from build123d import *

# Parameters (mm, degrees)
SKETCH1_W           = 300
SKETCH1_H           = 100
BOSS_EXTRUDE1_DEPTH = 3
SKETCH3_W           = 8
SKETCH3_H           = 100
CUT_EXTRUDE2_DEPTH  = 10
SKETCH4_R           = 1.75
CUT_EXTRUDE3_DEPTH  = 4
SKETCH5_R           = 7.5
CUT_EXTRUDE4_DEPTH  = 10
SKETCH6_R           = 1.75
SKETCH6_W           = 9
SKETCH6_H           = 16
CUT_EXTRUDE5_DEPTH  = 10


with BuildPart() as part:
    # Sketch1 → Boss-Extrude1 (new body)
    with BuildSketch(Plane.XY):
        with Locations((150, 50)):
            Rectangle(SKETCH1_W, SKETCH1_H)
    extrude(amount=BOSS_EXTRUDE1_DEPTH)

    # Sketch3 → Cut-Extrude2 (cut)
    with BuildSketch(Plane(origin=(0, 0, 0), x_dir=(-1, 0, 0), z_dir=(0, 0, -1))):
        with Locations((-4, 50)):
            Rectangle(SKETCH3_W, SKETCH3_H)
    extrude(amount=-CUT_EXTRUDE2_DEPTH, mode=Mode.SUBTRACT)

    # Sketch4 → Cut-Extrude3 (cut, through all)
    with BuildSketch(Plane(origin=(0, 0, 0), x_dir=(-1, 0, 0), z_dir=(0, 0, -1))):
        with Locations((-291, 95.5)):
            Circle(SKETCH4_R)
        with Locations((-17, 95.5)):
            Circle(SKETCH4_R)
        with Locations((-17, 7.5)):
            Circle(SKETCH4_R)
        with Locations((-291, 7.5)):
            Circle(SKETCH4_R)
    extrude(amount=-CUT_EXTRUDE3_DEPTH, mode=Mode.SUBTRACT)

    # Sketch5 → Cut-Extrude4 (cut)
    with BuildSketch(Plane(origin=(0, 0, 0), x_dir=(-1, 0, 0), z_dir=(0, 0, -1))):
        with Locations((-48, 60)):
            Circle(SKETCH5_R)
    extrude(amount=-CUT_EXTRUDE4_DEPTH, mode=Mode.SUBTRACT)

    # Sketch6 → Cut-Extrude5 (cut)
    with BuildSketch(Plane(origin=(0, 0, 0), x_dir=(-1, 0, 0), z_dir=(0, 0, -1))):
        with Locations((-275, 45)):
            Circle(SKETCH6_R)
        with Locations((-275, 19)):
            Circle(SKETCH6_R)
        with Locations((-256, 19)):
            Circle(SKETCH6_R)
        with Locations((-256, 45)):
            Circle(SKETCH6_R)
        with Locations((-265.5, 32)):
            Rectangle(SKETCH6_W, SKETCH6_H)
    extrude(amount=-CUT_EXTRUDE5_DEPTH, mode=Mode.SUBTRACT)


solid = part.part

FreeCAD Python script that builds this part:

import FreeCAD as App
import Part
import Sketcher

doc = App.newDocument("Part")
body = doc.addObject("PartDesign::Body", "Body")

sketch1 = body.newObject("Sketcher::SketchObject", "Sketch")
sketch1.AttachmentSupport = (doc.getObject("XY_Plane"), [""])
sketch1.MapMode = "FlatFace"
sketch1.addGeometry([
    Part.LineSegment(App.Vector(0, 100, 0), App.Vector(0, 0, 0)),
    Part.LineSegment(App.Vector(0, 0, 0), App.Vector(300, 0, 0)),
    Part.LineSegment(App.Vector(300, 0, 0), App.Vector(300, 100, 0)),
    Part.LineSegment(App.Vector(300, 100, 0), App.Vector(0, 100, 0)),
], False)
sketch1.addConstraint([
    Sketcher.Constraint("Coincident", 0, 2, 1, 1),
    Sketcher.Constraint("Coincident", 1, 2, 2, 1),
    Sketcher.Constraint("Coincident", 2, 2, 3, 1),
    Sketcher.Constraint("Coincident", 3, 2, 0, 1),
    Sketcher.Constraint("Vertical", 0),
    Sketcher.Constraint("Horizontal", 1),
    Sketcher.Constraint("Vertical", 2),
    Sketcher.Constraint("Horizontal", 3),
    Sketcher.Constraint("Coincident", 0, 2, -1, 1),
    Sketcher.Constraint("DistanceX", 1, 1, 1, 2, 300.0),
    Sketcher.Constraint("DistanceY", 0, 2, 0, 1, 100.0),
])
pad1 = body.newObject("PartDesign::Pad", "Pad")
pad1.Profile = sketch1
pad1.Length = 3

sketch2 = body.newObject("Sketcher::SketchObject", "Sketch001")
sketch2.AttachmentSupport = (doc.getObject("XY_Plane"), [""])
sketch2.MapMode = "FlatFace"
sketch2.addGeometry([
    Part.LineSegment(App.Vector(8, 100, 0), App.Vector(8, 0, 0)),
    Part.LineSegment(App.Vector(8, 0, 0), App.Vector(0, 0, 0)),
    Part.LineSegment(App.Vector(0, 0, 0), App.Vector(0, 100, 0)),
    Part.LineSegment(App.Vector(0, 100, 0), App.Vector(8, 100, 0)),
], False)
sketch2.addConstraint([
    Sketcher.Constraint("Coincident", 0, 2, 1, 1),
    Sketcher.Constraint("Coincident", 1, 2, 2, 1),
    Sketcher.Constraint("Coincident", 2, 2, 3, 1),
    Sketcher.Constraint("Coincident", 3, 2, 0, 1),
    Sketcher.Constraint("Vertical", 0),
    Sketcher.Constraint("Horizontal", 1),
    Sketcher.Constraint("Vertical", 2),
    Sketcher.Constraint("Horizontal", 3),
    Sketcher.Constraint("Coincident", 1, 2, -1, 1),
    Sketcher.Constraint("DistanceX", 1, 2, 1, 1, 8.0),
    Sketcher.Constraint("DistanceY", 0, 2, 0, 1, 100.0),
])
pocket1 = body.newObject("PartDesign::Pocket", "Pocket")
pocket1.Profile = sketch2
pocket1.Length = 10
pocket1.Reversed = True

sketch3 = body.newObject("Sketcher::SketchObject", "Sketch002")
sketch3.AttachmentSupport = (doc.getObject("XY_Plane"), [""])
sketch3.MapMode = "FlatFace"
sketch3.addGeometry([
    Part.Circle(App.Vector(291, 95.5, 0), App.Vector(0, 0, 1), 1.8),
    Part.Circle(App.Vector(17, 95.5, 0), App.Vector(0, 0, 1), 1.8),
    Part.Circle(App.Vector(17, 7.5, 0), App.Vector(0, 0, 1), 1.8),
    Part.Circle(App.Vector(291, 7.5, 0), App.Vector(0, 0, 1), 1.8),
], False)
sketch3.addConstraint([
    Sketcher.Constraint("Equal", 0, 1),
    Sketcher.Constraint("Equal", 1, 2),
    Sketcher.Constraint("Equal", 2, 3),
    Sketcher.Constraint("Horizontal", 0, 3, 1, 3),
    Sketcher.Constraint("Horizontal", 2, 3, 3, 3),
    Sketcher.Constraint("Vertical", 1, 3, 2, 3),
    Sketcher.Constraint("Vertical", 0, 3, 3, 3),
    Sketcher.Constraint("Diameter", 0, 3.5),
    Sketcher.Constraint("DistanceX", -1, 1, 0, 3, 291.0),
    Sketcher.Constraint("DistanceX", -1, 1, 1, 3, 17.0),
    Sketcher.Constraint("DistanceY", 2, 3, 1, 3, 88.0),
    Sketcher.Constraint("DistanceY", -1, 1, 0, 3, 95.5),
])
pocket2 = body.newObject("PartDesign::Pocket", "Pocket001")
pocket2.Profile = sketch3
pocket2.Type = "ThroughAll"
pocket2.Reversed = True

sketch4 = body.newObject("Sketcher::SketchObject", "Sketch003")
sketch4.AttachmentSupport = (doc.getObject("XY_Plane"), [""])
sketch4.MapMode = "FlatFace"
sketch4.addGeometry(Part.Circle(App.Vector(48, 60, 0), App.Vector(0, 0, 1), 8), False)
sketch4.addConstraint([
    Sketcher.Constraint("Diameter", 0, 15.0),
    Sketcher.Constraint("DistanceX", -1, 1, 0, 3, 48.0),
    Sketcher.Constraint("DistanceY", -1, 1, 0, 3, 60.0),
])
pocket3 = body.newObject("PartDesign::Pocket", "Pocket002")
pocket3.Profile = sketch4
pocket3.Length = 10
pocket3.Reversed = True

sketch5 = body.newObject("Sketcher::SketchObject", "Sketch004")
sketch5.AttachmentSupport = (doc.getObject("XY_Plane"), [""])
sketch5.MapMode = "FlatFace"
sketch5.addGeometry([
    Part.Circle(App.Vector(275, 45, 0), App.Vector(0, 0, 1), 1.8),
    Part.Circle(App.Vector(275, 19, 0), App.Vector(0, 0, 1), 1.8),
    Part.Circle(App.Vector(256, 19, 0), App.Vector(0, 0, 1), 1.8),
    Part.Circle(App.Vector(256, 45, 0), App.Vector(0, 0, 1), 1.8),
    Part.LineSegment(App.Vector(270, 40, 0), App.Vector(270, 24, 0)),
    Part.LineSegment(App.Vector(270, 24, 0), App.Vector(261, 24, 0)),
    Part.LineSegment(App.Vector(261, 24, 0), App.Vector(261, 40, 0)),
    Part.LineSegment(App.Vector(261, 40, 0), App.Vector(270, 40, 0)),
], False)
sketch5.addConstraint([
    Sketcher.Constraint("Coincident", 4, 2, 5, 1),
    Sketcher.Constraint("Coincident", 5, 2, 6, 1),
    Sketcher.Constraint("Coincident", 6, 2, 7, 1),
    Sketcher.Constraint("Coincident", 7, 2, 4, 1),
    Sketcher.Constraint("Vertical", 4),
    Sketcher.Constraint("Horizontal", 5),
    Sketcher.Constraint("Vertical", 6),
    Sketcher.Constraint("Horizontal", 7),
    Sketcher.Constraint("Equal", 0, 1),
    Sketcher.Constraint("Equal", 1, 2),
    Sketcher.Constraint("Equal", 2, 3),
    Sketcher.Constraint("Horizontal", 1, 3, 2, 3),
    Sketcher.Constraint("Horizontal", 0, 3, 3, 3),
    Sketcher.Constraint("Vertical", 0, 3, 1, 3),
    Sketcher.Constraint("Vertical", 2, 3, 3, 3),
    Sketcher.Constraint("Diameter", 0, 3.5),
    Sketcher.Constraint("DistanceX", 5, 2, 5, 1, 9.0),
    Sketcher.Constraint("DistanceY", 4, 2, 4, 1, 16.0),
    Sketcher.Constraint("DistanceX", -1, 1, 0, 3, 275.0),
    Sketcher.Constraint("DistanceY", -1, 1, 0, 3, 45.0),
    Sketcher.Constraint("DistanceY", -1, 1, 1, 3, 19.0),
    Sketcher.Constraint("DistanceX", -1, 1, 2, 3, 256.0),
    Sketcher.Constraint("DistanceX", -1, 1, 4, 2, 270.0),
    Sketcher.Constraint("DistanceY", -1, 1, 4, 2, 24.0),
])
pocket4 = body.newObject("PartDesign::Pocket", "Pocket003")
pocket4.Profile = sketch5
pocket4.Length = 10
pocket4.Reversed = True

doc.recompute()
